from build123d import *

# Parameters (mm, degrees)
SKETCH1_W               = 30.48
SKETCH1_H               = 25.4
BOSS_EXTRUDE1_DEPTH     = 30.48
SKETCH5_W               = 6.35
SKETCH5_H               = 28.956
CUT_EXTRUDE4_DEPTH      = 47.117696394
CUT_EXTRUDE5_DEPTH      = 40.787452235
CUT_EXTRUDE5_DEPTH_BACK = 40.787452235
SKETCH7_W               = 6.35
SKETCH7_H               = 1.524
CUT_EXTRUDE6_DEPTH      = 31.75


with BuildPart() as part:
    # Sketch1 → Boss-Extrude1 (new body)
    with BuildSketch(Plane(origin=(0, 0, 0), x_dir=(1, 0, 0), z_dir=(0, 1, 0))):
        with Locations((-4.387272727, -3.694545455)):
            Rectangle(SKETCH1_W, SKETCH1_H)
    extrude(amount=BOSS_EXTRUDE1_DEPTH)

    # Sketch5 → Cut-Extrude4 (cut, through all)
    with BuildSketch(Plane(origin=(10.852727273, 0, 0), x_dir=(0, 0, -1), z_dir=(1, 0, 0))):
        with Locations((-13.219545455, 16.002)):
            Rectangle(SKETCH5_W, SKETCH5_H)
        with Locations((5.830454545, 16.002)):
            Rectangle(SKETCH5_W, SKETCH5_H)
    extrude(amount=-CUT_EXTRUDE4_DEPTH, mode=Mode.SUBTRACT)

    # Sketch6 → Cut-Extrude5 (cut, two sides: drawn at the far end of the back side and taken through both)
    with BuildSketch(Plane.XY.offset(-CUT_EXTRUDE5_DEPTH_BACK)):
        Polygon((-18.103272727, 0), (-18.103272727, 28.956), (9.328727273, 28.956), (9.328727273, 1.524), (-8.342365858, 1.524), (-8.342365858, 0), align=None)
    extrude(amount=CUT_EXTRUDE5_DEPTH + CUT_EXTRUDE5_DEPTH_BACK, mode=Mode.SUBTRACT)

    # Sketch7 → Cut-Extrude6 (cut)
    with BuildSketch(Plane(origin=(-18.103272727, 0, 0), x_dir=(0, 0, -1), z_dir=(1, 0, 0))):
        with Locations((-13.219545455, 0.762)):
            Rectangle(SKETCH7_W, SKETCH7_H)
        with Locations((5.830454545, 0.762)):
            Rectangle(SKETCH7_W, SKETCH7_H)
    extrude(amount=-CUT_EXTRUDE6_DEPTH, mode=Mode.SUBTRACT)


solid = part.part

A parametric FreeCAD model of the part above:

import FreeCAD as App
import Part
import Sketcher
Q = App.Units.Quantity

doc = App.newDocument("Part")
body = doc.addObject("PartDesign::Body", "Body")

# Sketch on XZ plane
sketch1 = doc.addObject("Sketcher::SketchObject", "Sketch")
body.addObject(sketch1)
sketch1.AttachmentSupport = (doc.XZ_Plane, [""])
sketch1.MapMode = "FlatFace"
sketch1.addGeometry(Part.LineSegment(App.Vector(-20, -9, 0), App.Vector(-20, 16, 0)), False)
sketch1.addGeometry(Part.LineSegment(App.Vector(-20, 16, 0), App.Vector(11, 16, 0)), False)
sketch1.addGeometry(Part.LineSegment(App.Vector(11, 16, 0), App.Vector(11, -9, 0)), False)
sketch1.addGeometry(Part.LineSegment(App.Vector(11, -9, 0), App.Vector(-20, -9, 0)), False)
sketch1.addConstraint(Sketcher.Constraint("Coincident", 0, 2, 1, 1))
sketch1.addConstraint(Sketcher.Constraint("Coincident", 1, 2, 2, 1))
sketch1.addConstraint(Sketcher.Constraint("Coincident", 2, 2, 3, 1))
sketch1.addConstraint(Sketcher.Constraint("Coincident", 3, 2, 0, 1))
sketch1.addConstraint(Sketcher.Constraint("Vertical", 0))
sketch1.addConstraint(Sketcher.Constraint("Horizontal", 1))
sketch1.addConstraint(Sketcher.Constraint("Vertical", 2))
sketch1.addConstraint(Sketcher.Constraint("Horizontal", 3))
sketch1.addConstraint(Sketcher.Constraint("DistanceY", 0, 1, 0, 2, Q("1 in")))
sketch1.addConstraint(Sketcher.Constraint("DistanceX", 1, 1, 1, 2, Q("1.2 in")))
sketch1.addConstraint(Sketcher.Constraint("DistanceX", 0, 2, -1, 1, 19.627273))
sketch1.addConstraint(Sketcher.Constraint("DistanceY", -1, 1, 0, 2, 16.394545))
pad1 = doc.addObject("PartDesign::Pad", "Pad")
body.addObject(pad1)
pad1.Profile = sketch1
pad1.Length = Q("1.2 in")
pad1.Reversed = True

# Sketch on YZ plane
sketch2 = doc.addObject("Sketcher::SketchObject", "Sketch001")
body.addObject(sketch2)
sketch2.AttachmentSupport = (doc.YZ_Plane, [""])
sketch2.MapMode = "FlatFace"
sketch2.AttachmentOffset = App.Placement(App.Vector(0, 0, 10.852727), App.Rotation())
sketch2.addGeometry(Part.LineSegment(App.Vector(30, 16, 0), App.Vector(2, 16, 0)), False)
sketch2.addGeometry(Part.LineSegment(App.Vector(2, 16, 0), App.Vector(2, 10, 0)), False)
sketch2.addGeometry(Part.LineSegment(App.Vector(2, 10, 0), App.Vector(30, 10, 0)), False)
sketch2.addGeometry(Part.LineSegment(App.Vector(30, 10, 0), App.Vector(30, 16, 0)), False)
sketch2.addGeometry(Part.LineSegment(App.Vector(30, -3, 0), App.Vector(2, -3, 0)), False)
sketch2.addGeometry(Part.LineSegment(App.Vector(2, -3, 0), App.Vector(2, -9, 0)), False)
sketch2.addGeometry(Part.LineSegment(App.Vector(2, -9, 0), App.Vector(30, -9, 0)), False)
sketch2.addGeometry(Part.LineSegment(App.Vector(30, -9, 0), App.Vector(30, -3, 0)), False)
sketch2.addConstraint(Sketcher.Constraint("Coincident", 0, 2, 1, 1))
sketch2.addConstraint(Sketcher.Constraint("Coincident", 1, 2, 2, 1))
sketch2.addConstraint(Sketcher.Constraint("Coincident", 2, 2, 3, 1))
sketch2.addConstraint(Sketcher.Constraint("Coincident", 3, 2, 0, 1))
sketch2.addConstraint(Sketcher.Constraint("Coincident", 4, 2, 5, 1))
sketch2.addConstraint(Sketcher.Constraint("Coincident", 5, 2, 6, 1))
sketch2.addConstraint(Sketcher.Constraint("Coincident", 6, 2, 7, 1))
sketch2.addConstraint(Sketcher.Constraint("Coincident", 7, 2, 4, 1))
sketch2.addConstraint(Sketcher.Constraint("Horizontal", 0))
sketch2.addConstraint(Sketcher.Constraint("Vertical", 1))
sketch2.addConstraint(Sketcher.Constraint("Horizontal", 2))
sketch2.addConstraint(Sketcher.Constraint("Vertical", 3))
sketch2.addConstraint(Sketcher.Constraint("Horizontal", 4))
sketch2.addConstraint(Sketcher.Constraint("Vertical", 5))
sketch2.addConstraint(Sketcher.Constraint("Horizontal", 6))
sketch2.addConstraint(Sketcher.Constraint("Vertical", 7))
sketch2.addConstraint(Sketcher.Constraint("Vertical", 1, 2, 4, 2))
sketch2.addConstraint(Sketcher.Constraint("Vertical", 3, 2, 6, 2))
sketch2.addConstraint(Sketcher.Constraint("Equal", 3, 5))
sketch2.addConstraint(Sketcher.Constraint("DistanceY", 5, 2, 0, 2, Q("1 in")))
sketch2.addConstraint(Sketcher.Constraint("DistanceX", 0, 2, 0, 1, Q("1.14 in")))
sketch2.addConstraint(Sketcher.Constraint("DistanceY", 1, 2, 1, 1, Q("0.25 in")))
sketch2.addConstraint(Sketcher.Constraint("DistanceX", -1, 1, 2, 2, Q("1.2 in")))
sketch2.addConstraint(Sketcher.Constraint("DistanceY", -1, 1, 0, 2, 16.394545))
pocket1 = doc.addObject("PartDesign::Pocket", "Pocket")
body.addObject(pocket1)
pocket1.Profile = sketch2
pocket1.Type = "ThroughAll"

# Sketch on XY plane
sketch3 = doc.addObject("Sketcher::SketchObject", "Sketch002")
body.addObject(sketch3)
sketch3.AttachmentSupport = (doc.XY_Plane, [""])
sketch3.MapMode = "FlatFace"
sketch3.addGeometry(Part.LineSegment(App.Vector(-18.1, 29, 0), App.Vector(-18.1, 0, 0)), False)
sketch3.addGeometry(Part.LineSegment(App.Vector(-18.1, 0, 0), App.Vector(-8.3, 0, 0)), False)
sketch3.addGeometry(Part.LineSegment(App.Vector(-8.3, 0, 0), App.Vector(-8.3, 1.5, 0)), False)
sketch3.addGeometry(Part.LineSegment(App.Vector(-8.3, 1.5, 0), App.Vector(9.3, 1.5, 0)), False)
sketch3.addGeometry(Part.LineSegment(App.Vector(9.3, 1.5, 0), App.Vector(9.3, 29, 0)), False)
sketch3.addGeometry(Part.LineSegment(App.Vector(9.3, 29, 0), App.Vector(-18.1, 29, 0)), False)
sketch3.addConstraint(Sketcher.Constraint("Coincident", 0, 2, 1, 1))
sketch3.addConstraint(Sketcher.Constraint("Coincident", 1, 2, 2, 1))
sketch3.addConstraint(Sketcher.Constraint("Coincident", 2, 2, 3, 1))
sketch3.addConstraint(Sketcher.Constraint("Coincident", 3, 2, 4, 1))
sketch3.addConstraint(Sketcher.Constraint("Coincident", 4, 2, 5, 1))
sketch3.addConstraint(Sketcher.Constraint("Coincident", 5, 2, 0, 1))
sketch3.addConstraint(Sketcher.Constraint("Vertical", 0))
sketch3.addConstraint(Sketcher.Constraint("Horizontal", 1))
sketch3.addConstraint(Sketcher.Constraint("Vertical", 2))
sketch3.addConstraint(Sketcher.Constraint("Horizontal", 3))
sketch3.addConstraint(Sketcher.Constraint("Vertical", 4))
sketch3.addConstraint(Sketcher.Constraint("Horizontal", 5))
sketch3.addConstraint(Sketcher.Constraint("PointOnObject", 0, 2, -1))
sketch3.addConstraint(Sketcher.Constraint("Equal", 5, 4))
sketch3.addConstraint(Sketcher.Constraint("DistanceX", 5, 2, 5, 1, Q("1.08 in")))
sketch3.addConstraint(Sketcher.Constraint("DistanceY", 0, 2, 0, 1, Q("1.14 in")))
sketch3.addConstraint(Sketcher.Constraint("DistanceX", 1, 1, 1, 2, 9.760907))
sketch3.addConstraint(Sketcher.Constraint("DistanceX", 0, 2, -1, 1, 18.103273))
pocket2 = doc.addObject("PartDesign::Pocket", "Pocket001")
body.addObject(pocket2)
pocket2.Profile = sketch3
pocket2.Type = "ThroughAll"
pocket2.Midplane = True

# Sketch on YZ plane
sketch4 = doc.addObject("Sketcher::SketchObject", "Sketch003")
body.addObject(sketch4)
sketch4.AttachmentSupport = (doc.YZ_Plane, [""])
sketch4.MapMode = "FlatFace"
sketch4.AttachmentOffset = App.Placement(App.Vector(0, 0, -18.103273), App.Rotation())
sketch4.addGeometry(Part.LineSegment(App.Vector(1.5, 16.4, 0), App.Vector(0, 16.4, 0)), False)
sketch4.addGeometry(Part.LineSegment(App.Vector(0, 16.4, 0), App.Vector(0, 10, 0)), False)
sketch4.addGeometry(Part.LineSegment(App.Vector(0, 10, 0), App.Vector(1.5, 10, 0)), False)
sketch4.addGeometry(Part.LineSegment(App.Vector(1.5, 10, 0), App.Vector(1.5, 16.4, 0)), False)
sketch4.addGeometry(Part.LineSegment(App.Vector(1.5, -2.7, 0), App.Vector(0, -2.7, 0)), False)
sketch4.addGeometry(Part.LineSegment(App.Vector(0, -2.7, 0), App.Vector(0, -9, 0)), False)
sketch4.addGeometry(Part.LineSegment(App.Vector(0, -9, 0), App.Vector(1.5, -9, 0)), False)
sketch4.addGeometry(Part.LineSegment(App.Vector(1.5, -9, 0), App.Vector(1.5, -2.7, 0)), False)
sketch4.addConstraint(Sketcher.Constraint("Coincident", 0, 2, 1, 1))
sketch4.addConstraint(Sketcher.Constraint("Coincident", 1, 2, 2, 1))
sketch4.addConstraint(Sketcher.Constraint("Coincident", 2, 2, 3, 1))
sketch4.addConstraint(Sketcher.Constraint("Coincident", 3, 2, 0, 1))
sketch4.addConstraint(Sketcher.Constraint("Coincident", 4, 2, 5, 1))
sketch4.addConstraint(Sketcher.Constraint("Coincident", 5, 2, 6, 1))
sketch4.addConstraint(Sketcher.Constraint("Coincident", 6, 2, 7, 1))
sketch4.addConstraint(Sketcher.Constraint("Coincident", 7, 2, 4, 1))
sketch4.addConstraint(Sketcher.Constraint("Horizontal", 0))
sketch4.addConstraint(Sketcher.Constraint("Vertical", 1))
sketch4.addConstraint(Sketcher.Constraint("Horizontal", 2))
sketch4.addConstraint(Sketcher.Constraint("Vertical", 3))
sketch4.addConstraint(Sketcher.Constraint("Horizontal", 4))
sketch4.addConstraint(Sketcher.Constraint("Vertical", 5))
sketch4.addConstraint(Sketcher.Constraint("Horizontal", 6))
sketch4.addConstraint(Sketcher.Constraint("Vertical", 7))
sketch4.addConstraint(Sketcher.Constraint("PointOnObject", 0, 2, -2))
sketch4.addConstraint(Sketcher.Constraint("PointOnObject", 4, 2, -2))
sketch4.addConstraint(Sketcher.Constraint("Vertical", 3, 2, 6, 2))
sketch4.addConstraint(Sketcher.Constraint("Equal", 3, 5))
sketch4.addConstraint(Sketcher.Constraint("DistanceY", 5, 2, 0, 2, Q("1 in")))
sketch4.addConstraint(Sketcher.Constraint("DistanceX", 0, 2, 0, 1, Q("0.06 in")))
sketch4.addConstraint(Sketcher.Constraint("DistanceY", 1, 2, 1, 1, Q("0.25 in")))
sketch4.addConstraint(Sketcher.Constraint("DistanceY", -1, 1, 0, 2, 16.394545))
pocket3 = doc.addObject("PartDesign::Pocket", "Pocket002")
body.addObject(pocket3)
pocket3.Profile = sketch4
pocket3.Length = Q("1.25 in")

doc.recompute()
